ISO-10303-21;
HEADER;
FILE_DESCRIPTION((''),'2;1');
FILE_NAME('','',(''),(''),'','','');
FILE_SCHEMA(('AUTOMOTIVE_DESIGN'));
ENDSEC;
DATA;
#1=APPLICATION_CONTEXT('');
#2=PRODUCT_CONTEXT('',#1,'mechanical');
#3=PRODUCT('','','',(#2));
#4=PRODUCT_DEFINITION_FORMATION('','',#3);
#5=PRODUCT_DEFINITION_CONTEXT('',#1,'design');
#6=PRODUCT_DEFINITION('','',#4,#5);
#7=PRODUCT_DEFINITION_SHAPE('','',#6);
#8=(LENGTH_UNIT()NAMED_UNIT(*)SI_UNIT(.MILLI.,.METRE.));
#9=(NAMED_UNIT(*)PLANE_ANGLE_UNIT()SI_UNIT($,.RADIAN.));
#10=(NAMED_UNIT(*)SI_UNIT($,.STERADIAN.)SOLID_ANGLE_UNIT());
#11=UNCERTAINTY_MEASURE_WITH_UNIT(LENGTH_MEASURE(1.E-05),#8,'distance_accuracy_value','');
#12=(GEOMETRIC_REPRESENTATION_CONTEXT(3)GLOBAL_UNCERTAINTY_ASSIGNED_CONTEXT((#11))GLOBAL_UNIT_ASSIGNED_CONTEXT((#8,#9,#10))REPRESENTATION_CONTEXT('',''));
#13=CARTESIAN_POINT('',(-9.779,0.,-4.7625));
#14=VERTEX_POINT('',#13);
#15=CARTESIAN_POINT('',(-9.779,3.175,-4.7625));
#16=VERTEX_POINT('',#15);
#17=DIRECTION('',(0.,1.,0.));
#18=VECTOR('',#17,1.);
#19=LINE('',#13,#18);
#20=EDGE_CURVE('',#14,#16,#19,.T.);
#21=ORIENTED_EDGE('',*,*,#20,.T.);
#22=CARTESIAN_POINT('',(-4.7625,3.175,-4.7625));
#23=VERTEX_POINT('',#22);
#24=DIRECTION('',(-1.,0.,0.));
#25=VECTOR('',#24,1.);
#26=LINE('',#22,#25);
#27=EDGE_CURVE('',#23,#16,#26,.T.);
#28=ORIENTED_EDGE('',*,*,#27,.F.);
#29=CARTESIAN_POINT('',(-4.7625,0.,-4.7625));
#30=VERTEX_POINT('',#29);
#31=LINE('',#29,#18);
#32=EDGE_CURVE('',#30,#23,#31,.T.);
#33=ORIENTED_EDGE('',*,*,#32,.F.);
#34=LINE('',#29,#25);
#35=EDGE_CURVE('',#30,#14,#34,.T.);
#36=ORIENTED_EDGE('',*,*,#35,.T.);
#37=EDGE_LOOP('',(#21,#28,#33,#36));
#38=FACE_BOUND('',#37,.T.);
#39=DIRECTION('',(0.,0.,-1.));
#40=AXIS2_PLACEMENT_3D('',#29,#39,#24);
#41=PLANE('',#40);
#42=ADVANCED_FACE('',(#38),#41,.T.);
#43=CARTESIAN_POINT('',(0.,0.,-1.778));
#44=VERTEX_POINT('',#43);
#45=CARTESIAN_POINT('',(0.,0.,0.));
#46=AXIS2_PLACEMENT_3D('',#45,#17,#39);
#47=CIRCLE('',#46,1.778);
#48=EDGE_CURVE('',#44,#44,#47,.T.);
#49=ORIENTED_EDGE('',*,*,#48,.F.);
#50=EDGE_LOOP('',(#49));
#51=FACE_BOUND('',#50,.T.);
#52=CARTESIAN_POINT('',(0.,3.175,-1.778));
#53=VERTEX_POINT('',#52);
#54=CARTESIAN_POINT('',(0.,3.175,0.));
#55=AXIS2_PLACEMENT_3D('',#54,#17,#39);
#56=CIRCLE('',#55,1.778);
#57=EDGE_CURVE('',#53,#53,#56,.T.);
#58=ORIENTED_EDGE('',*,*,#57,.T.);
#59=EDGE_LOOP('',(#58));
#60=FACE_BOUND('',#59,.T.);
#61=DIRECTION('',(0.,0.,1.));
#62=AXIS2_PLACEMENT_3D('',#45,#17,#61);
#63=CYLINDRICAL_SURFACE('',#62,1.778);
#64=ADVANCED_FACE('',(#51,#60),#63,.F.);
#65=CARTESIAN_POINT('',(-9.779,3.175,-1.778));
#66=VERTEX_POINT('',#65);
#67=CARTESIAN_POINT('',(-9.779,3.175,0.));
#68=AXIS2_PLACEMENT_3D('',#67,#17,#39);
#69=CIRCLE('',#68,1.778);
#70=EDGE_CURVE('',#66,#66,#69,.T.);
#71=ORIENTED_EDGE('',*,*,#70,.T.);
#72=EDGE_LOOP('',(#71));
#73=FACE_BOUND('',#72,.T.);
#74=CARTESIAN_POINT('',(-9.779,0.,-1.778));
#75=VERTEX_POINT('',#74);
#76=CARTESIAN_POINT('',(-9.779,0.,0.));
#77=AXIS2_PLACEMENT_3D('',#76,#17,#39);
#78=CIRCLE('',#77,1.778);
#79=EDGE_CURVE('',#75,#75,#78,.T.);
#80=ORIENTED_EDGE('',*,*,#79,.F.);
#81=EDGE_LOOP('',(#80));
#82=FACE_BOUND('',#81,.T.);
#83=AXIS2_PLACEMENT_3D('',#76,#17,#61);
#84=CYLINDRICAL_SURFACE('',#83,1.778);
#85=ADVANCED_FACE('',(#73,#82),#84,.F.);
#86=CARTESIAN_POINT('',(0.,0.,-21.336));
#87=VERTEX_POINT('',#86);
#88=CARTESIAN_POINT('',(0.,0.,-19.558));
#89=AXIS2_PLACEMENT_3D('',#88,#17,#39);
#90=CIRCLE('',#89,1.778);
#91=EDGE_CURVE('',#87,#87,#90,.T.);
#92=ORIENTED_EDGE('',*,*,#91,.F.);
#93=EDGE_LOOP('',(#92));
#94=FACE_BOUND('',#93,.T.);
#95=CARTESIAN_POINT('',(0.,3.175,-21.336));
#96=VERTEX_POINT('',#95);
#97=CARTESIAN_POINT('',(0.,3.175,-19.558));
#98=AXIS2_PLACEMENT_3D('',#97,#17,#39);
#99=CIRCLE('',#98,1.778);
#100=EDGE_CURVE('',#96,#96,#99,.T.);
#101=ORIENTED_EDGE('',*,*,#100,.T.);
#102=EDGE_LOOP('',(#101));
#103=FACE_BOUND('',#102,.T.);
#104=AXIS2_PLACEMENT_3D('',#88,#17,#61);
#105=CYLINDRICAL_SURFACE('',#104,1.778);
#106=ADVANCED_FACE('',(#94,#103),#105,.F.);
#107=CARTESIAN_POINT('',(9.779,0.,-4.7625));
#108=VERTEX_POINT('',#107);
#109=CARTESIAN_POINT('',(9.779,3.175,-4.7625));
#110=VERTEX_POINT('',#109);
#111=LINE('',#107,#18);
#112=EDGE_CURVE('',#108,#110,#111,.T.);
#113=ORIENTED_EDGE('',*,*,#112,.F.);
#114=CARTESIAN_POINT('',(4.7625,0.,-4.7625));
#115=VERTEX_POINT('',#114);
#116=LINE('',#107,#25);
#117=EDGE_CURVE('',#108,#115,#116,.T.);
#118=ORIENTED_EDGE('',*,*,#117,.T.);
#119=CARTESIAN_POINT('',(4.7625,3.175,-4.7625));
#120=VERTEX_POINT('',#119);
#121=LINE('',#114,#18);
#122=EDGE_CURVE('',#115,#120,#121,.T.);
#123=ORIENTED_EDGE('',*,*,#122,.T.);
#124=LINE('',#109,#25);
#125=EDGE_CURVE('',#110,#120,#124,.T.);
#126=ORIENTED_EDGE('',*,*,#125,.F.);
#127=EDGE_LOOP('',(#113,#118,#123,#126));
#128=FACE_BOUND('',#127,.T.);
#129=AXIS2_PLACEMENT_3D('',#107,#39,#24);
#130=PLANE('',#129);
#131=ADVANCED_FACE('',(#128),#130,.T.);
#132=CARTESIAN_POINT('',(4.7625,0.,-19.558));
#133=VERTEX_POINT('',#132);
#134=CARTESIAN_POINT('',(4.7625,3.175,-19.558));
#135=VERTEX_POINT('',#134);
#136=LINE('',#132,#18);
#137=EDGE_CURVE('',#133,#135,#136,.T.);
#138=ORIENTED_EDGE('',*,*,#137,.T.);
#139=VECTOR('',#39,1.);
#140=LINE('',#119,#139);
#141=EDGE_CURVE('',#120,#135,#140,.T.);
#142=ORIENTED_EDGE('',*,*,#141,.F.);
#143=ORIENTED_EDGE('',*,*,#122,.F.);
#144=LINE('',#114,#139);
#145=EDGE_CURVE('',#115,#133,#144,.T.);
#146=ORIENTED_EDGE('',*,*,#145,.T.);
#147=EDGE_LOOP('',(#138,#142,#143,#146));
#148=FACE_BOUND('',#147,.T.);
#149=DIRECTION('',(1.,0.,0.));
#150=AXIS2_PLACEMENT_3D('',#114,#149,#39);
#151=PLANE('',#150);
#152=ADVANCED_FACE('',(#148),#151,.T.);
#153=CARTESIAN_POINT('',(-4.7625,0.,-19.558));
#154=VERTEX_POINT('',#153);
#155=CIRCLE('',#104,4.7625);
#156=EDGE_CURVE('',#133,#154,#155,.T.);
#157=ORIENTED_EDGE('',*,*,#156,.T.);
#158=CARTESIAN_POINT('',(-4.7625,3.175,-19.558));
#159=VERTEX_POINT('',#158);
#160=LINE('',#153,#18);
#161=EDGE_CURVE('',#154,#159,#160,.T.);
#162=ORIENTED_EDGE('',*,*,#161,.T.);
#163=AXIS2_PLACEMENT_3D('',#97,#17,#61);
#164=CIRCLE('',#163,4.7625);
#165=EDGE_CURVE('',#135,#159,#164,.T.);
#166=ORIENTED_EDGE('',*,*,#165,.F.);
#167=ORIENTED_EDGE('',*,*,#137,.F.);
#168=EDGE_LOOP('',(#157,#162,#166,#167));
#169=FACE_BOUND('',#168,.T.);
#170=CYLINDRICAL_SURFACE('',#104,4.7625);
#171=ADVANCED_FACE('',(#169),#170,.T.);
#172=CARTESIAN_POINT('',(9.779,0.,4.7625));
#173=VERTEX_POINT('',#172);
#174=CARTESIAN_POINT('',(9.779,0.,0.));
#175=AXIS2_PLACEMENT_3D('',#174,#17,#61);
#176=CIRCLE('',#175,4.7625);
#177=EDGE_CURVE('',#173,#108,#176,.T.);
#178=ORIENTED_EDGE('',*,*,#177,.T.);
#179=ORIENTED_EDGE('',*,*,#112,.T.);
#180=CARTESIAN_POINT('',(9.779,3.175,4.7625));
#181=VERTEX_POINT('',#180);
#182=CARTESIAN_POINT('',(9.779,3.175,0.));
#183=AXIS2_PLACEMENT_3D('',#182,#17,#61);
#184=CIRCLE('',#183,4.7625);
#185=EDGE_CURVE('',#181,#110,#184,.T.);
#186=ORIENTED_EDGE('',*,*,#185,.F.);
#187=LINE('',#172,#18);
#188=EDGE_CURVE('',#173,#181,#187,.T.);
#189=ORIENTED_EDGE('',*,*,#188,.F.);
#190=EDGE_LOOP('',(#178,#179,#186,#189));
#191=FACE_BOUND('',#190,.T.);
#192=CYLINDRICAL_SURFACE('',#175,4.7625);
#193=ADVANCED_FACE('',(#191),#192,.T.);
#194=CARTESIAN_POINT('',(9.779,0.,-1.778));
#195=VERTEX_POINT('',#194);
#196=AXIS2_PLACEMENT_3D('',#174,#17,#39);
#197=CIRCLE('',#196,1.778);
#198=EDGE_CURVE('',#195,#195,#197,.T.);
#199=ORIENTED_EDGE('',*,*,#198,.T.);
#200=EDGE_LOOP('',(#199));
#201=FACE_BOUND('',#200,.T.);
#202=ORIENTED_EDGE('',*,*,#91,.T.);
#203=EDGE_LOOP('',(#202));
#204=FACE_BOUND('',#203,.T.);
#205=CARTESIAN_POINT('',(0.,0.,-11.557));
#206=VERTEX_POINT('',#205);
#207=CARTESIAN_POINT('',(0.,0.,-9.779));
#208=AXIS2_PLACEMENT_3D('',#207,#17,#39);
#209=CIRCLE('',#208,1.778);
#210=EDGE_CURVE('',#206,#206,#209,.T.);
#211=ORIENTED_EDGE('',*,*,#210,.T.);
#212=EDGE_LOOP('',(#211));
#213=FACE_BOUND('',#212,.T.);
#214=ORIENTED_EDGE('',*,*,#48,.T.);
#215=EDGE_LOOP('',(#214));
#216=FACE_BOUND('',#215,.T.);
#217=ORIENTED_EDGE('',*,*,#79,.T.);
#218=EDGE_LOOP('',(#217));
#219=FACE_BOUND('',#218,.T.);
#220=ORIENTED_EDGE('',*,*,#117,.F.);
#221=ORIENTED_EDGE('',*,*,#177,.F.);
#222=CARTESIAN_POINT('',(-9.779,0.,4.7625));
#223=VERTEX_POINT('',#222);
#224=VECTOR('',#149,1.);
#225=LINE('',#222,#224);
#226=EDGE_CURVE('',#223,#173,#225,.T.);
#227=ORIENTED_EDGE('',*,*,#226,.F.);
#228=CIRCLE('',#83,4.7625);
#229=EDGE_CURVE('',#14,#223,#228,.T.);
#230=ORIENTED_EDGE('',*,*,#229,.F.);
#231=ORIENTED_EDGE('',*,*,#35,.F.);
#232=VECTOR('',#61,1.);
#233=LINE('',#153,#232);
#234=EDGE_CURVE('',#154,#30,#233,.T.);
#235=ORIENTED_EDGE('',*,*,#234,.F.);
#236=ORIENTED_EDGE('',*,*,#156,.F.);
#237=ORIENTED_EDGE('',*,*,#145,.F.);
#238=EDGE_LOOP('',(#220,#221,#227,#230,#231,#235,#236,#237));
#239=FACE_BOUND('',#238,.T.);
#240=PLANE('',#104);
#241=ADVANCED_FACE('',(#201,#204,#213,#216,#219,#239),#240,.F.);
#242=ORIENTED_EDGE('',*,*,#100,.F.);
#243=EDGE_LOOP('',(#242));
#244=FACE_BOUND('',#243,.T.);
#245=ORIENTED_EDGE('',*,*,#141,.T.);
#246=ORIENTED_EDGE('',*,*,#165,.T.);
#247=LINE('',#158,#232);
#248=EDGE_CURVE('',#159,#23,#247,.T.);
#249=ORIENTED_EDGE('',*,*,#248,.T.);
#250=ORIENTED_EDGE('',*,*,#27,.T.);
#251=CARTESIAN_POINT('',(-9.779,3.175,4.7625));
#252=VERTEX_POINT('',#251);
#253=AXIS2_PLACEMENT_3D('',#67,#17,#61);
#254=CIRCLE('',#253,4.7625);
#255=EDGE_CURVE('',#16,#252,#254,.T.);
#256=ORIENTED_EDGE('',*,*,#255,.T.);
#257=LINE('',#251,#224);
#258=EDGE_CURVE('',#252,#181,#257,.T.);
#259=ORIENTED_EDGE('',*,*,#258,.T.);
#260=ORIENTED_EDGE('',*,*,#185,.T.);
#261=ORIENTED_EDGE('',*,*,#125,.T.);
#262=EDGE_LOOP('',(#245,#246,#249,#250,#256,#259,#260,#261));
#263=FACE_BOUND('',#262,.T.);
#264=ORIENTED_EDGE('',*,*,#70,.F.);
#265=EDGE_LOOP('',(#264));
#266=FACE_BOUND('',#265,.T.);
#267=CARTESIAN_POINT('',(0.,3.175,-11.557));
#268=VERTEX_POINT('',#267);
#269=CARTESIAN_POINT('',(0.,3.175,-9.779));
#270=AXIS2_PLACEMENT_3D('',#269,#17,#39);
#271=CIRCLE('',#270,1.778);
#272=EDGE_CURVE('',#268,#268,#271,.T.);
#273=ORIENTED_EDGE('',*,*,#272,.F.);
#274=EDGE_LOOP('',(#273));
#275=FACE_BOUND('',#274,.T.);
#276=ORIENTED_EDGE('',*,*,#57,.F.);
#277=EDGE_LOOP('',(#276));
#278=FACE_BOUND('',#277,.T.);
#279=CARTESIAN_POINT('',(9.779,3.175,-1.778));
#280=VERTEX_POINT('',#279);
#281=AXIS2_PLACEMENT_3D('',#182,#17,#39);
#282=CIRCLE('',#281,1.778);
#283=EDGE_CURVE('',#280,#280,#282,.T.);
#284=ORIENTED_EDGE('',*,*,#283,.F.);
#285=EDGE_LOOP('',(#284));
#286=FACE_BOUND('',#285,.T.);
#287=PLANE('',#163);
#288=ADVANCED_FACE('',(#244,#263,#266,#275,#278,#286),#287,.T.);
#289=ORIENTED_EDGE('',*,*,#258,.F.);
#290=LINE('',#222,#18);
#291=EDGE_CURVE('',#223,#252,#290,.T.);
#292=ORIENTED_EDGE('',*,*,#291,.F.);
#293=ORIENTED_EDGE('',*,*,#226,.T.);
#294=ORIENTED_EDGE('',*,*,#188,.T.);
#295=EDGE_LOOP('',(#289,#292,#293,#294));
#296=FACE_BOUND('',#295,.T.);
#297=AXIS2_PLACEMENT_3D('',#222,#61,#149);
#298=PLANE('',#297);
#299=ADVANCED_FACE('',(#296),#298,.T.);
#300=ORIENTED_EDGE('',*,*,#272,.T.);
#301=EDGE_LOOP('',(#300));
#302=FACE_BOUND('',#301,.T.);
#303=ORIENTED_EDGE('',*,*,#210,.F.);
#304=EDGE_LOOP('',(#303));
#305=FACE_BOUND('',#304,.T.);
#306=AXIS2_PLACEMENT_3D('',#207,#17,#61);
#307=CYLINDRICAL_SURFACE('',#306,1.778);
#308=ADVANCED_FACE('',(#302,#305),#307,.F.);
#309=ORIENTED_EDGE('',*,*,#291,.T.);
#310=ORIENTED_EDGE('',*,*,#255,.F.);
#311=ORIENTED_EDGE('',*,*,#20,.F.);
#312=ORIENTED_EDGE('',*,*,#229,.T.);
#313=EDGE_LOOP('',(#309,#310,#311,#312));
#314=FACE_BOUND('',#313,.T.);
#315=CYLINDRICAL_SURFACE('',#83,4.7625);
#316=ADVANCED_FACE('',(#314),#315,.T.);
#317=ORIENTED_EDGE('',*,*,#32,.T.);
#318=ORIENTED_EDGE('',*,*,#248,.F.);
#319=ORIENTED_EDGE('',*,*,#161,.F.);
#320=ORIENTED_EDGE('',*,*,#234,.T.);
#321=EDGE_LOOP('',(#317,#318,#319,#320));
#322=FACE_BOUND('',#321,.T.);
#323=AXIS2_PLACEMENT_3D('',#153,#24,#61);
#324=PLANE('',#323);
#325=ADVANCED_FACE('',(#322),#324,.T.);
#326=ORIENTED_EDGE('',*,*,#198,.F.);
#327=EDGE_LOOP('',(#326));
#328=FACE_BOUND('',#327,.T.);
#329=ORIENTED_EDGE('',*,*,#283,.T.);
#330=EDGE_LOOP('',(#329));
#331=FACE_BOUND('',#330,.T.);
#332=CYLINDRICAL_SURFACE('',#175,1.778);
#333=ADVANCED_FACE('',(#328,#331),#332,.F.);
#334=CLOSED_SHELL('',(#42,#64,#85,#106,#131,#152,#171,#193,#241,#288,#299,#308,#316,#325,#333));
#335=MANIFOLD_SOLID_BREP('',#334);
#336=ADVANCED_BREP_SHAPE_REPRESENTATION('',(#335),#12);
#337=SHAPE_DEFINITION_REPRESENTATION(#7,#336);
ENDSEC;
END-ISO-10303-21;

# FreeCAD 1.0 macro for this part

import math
import FreeCAD as App
import Part
import Sketcher

V = App.Vector
Q = App.Units.Quantity

doc = App.newDocument("Part")
body = doc.addObject("PartDesign::Body", "Body")

sketch1 = body.newObject("Sketcher::SketchObject", "Sketch")
sketch1.AttachmentSupport = (doc.getObject("XZ_Plane"), [""])
sketch1.MapMode = "FlatFace"
sketch1.AttachmentOffset = App.Placement(V(0, 0, -0.125 * 25.4), App.Rotation())
sketch1.addGeometry(Part.LineSegment(V(4.8, -4.8, 0), V(4.8, -19.6, 0)), False)
sketch1.addGeometry(Part.ArcOfCircle(Part.Circle(V(0, -19.6, 0), V(0, 0, 1), 4.8), math.radians(180), math.radians(360)), False)
sketch1.addGeometry(Part.LineSegment(V(-4.8, -19.6, 0), V(-4.8, -4.8, 0)), False)
sketch1.addGeometry(Part.LineSegment(V(-4.8, -4.8, 0), V(-9.8, -4.8, 0)), False)
sketch1.addGeometry(Part.ArcOfCircle(Part.Circle(V(-9.8, 0, 0), V(0, 0, 1), 4.8), math.radians(90), math.radians(270)), False)
sketch1.addGeometry(Part.LineSegment(V(-9.8, 4.8, 0), V(9.8, 4.8, 0)), False)
sketch1.addGeometry(Part.ArcOfCircle(Part.Circle(V(9.8, 0, 0), V(0, 0, 1), 4.8), math.radians(-90), math.radians(90)), False)
sketch1.addGeometry(Part.LineSegment(V(9.8, -4.8, 0), V(4.8, -4.8, 0)), False)
sketch1.addGeometry(Part.Circle(V(-9.8, 0, 0), V(0, 0, 1), 1.8), False)
sketch1.addGeometry(Part.Circle(V(0, 0, 0), V(0, 0, 1), 1.8), False)
sketch1.addGeometry(Part.Circle(V(0, -9.8, 0), V(0, 0, 1), 1.8), False)
sketch1.addGeometry(Part.Circle(V(9.8, 0, 0), V(0, 0, 1), 1.8), False)
sketch1.addGeometry(Part.Circle(V(0, -19.6, 0), V(0, 0, 1), 1.8), False)
sketch1.addConstraint(Sketcher.Constraint("Tangent", 0, 2, 1, 2))
sketch1.addConstraint(Sketcher.Constraint("Tangent", 1, 1, 2, 1))
sketch1.addConstraint(Sketcher.Constraint("Coincident", 2, 2, 3, 1))
sketch1.addConstraint(Sketcher.Constraint("Tangent", 3, 2, 4, 2))
sketch1.addConstraint(Sketcher.Constraint("Tangent", 4, 1, 5, 1))
sketch1.addConstraint(Sketcher.Constraint("Tangent", 5, 2, 6, 2))
sketch1.addConstraint(Sketcher.Constraint("Tangent", 6, 1, 7, 1))
sketch1.addConstraint(Sketcher.Constraint("Coincident", 7, 2, 0, 1))
sketch1.addConstraint(Sketcher.Constraint("Vertical", 0))
sketch1.addConstraint(Sketcher.Constraint("Vertical", 2))
sketch1.addConstraint(Sketcher.Constraint("Horizontal", 3))
sketch1.addConstraint(Sketcher.Constraint("Horizontal", 5))
sketch1.addConstraint(Sketcher.Constraint("Horizontal", 7))
sketch1.addConstraint(Sketcher.Constraint("Coincident", 9, 3, -1, 1))
sketch1.addConstraint(Sketcher.Constraint("Coincident", 8, 3, 4, 3))
sketch1.addConstraint(Sketcher.Constraint("Coincident", 11, 3, 6, 3))
sketch1.addConstraint(Sketcher.Constraint("Coincident", 12, 3, 1, 3))
sketch1.addConstraint(Sketcher.Constraint("Equal", 1, 4))
sketch1.addConstraint(Sketcher.Constraint("Equal", 4, 6))
sketch1.addConstraint(Sketcher.Constraint("Equal", 8, 9))
sketch1.addConstraint(Sketcher.Constraint("Equal", 9, 10))
sketch1.addConstraint(Sketcher.Constraint("Equal", 10, 11))
sketch1.addConstraint(Sketcher.Constraint("Equal", 11, 12))
sketch1.addConstraint(Sketcher.Constraint("Symmetric", 4, 3, 6, 3, -1, 1))
sketch1.addConstraint(Sketcher.Constraint("PointOnObject", 1, 3, -2))
sketch1.addConstraint(Sketcher.Constraint("PointOnObject", 10, 3, -2))
sketch1.addConstraint(Sketcher.Constraint("Diameter", 8, Q("0.14 in")))
sketch1.addConstraint(Sketcher.Constraint("Radius", 1, Q("0.1875 in")))
sketch1.addConstraint(Sketcher.Constraint("DistanceX", 5, 1, 5, 2, Q("0.77 in")))
sketch1.addConstraint(Sketcher.Constraint("DistanceY", 1, 3, -1, 1, Q("0.77 in")))
sketch1.addConstraint(Sketcher.Constraint("DistanceY", 10, 3, -1, 1, Q("0.385 in")))
pad1 = body.newObject("PartDesign::Pad", "Pad")
pad1.Profile = sketch1
pad1.Length = Q("0.125 in")

doc.recompute()
